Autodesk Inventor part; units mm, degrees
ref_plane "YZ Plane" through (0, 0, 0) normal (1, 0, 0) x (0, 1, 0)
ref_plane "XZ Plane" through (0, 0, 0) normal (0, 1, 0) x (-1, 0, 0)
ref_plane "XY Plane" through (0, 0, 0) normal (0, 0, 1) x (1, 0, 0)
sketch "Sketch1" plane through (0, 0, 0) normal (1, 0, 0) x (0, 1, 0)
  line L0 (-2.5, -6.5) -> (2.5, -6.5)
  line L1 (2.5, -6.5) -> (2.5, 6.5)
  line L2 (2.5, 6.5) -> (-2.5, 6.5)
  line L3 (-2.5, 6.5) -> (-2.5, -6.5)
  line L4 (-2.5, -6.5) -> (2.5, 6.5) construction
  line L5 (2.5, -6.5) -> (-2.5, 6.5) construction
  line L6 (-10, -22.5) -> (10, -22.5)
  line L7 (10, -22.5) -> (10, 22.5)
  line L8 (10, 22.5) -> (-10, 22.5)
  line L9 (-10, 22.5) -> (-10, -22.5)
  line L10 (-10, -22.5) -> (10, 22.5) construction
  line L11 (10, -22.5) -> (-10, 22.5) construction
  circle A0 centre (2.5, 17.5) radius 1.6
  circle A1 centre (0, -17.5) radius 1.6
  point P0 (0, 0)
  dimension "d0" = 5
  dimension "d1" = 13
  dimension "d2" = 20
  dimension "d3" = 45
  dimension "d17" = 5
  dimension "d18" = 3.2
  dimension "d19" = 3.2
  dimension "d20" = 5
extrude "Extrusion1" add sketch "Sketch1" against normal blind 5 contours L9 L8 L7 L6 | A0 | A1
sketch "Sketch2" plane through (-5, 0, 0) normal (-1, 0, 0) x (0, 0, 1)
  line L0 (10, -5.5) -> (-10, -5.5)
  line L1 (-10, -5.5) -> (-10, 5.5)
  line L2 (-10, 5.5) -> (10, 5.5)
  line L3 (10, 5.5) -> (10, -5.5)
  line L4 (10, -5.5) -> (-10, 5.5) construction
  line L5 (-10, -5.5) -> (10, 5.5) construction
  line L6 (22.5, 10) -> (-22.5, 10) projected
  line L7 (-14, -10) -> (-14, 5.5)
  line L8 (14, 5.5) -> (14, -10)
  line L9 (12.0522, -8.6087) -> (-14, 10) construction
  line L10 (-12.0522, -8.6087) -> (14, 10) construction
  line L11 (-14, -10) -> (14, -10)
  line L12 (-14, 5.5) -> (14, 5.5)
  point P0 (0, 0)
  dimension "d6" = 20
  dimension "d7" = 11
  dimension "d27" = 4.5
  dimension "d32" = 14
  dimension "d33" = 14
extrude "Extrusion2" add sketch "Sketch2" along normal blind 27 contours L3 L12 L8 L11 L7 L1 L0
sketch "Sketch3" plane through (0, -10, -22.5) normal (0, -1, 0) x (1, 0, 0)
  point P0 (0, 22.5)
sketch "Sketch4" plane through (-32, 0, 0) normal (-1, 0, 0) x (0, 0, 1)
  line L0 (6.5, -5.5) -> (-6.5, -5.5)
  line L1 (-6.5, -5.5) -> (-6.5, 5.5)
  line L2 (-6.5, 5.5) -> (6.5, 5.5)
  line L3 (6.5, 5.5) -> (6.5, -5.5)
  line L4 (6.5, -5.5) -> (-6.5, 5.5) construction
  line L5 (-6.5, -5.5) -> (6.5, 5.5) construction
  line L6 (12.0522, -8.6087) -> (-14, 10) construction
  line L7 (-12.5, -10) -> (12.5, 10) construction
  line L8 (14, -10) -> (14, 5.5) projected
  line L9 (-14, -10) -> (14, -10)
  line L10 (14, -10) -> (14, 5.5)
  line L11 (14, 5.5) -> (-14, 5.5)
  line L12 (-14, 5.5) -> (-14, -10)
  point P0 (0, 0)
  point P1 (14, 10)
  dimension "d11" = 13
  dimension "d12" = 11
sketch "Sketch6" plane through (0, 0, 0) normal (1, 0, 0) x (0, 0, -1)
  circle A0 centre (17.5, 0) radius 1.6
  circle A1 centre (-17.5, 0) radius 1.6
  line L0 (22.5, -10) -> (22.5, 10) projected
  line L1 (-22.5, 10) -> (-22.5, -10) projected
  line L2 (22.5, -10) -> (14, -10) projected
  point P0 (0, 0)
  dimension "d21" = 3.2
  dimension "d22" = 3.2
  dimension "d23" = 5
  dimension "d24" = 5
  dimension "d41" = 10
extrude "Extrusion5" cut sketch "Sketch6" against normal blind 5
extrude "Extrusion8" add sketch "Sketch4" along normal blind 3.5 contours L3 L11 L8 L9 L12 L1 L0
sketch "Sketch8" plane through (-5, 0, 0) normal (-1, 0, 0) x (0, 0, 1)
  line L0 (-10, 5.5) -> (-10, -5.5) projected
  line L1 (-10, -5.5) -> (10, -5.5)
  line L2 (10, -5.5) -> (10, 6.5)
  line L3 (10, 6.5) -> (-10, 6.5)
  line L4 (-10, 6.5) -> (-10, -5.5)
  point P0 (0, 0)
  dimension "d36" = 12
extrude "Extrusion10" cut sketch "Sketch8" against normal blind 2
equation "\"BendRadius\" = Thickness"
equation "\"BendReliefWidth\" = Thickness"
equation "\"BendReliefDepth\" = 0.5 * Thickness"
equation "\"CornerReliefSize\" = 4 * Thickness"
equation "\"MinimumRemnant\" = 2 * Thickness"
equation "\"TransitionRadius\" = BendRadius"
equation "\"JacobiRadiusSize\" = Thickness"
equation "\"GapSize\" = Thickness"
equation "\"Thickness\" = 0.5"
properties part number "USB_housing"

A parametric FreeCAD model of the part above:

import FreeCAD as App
import Part
import Sketcher
from FreeCAD import Vector
Q = App.Units.Quantity

doc = App.newDocument("Part")
body = doc.addObject("PartDesign::Body", "Body")

# Sketch on YZ plane
sketch1 = body.newObject("Sketcher::SketchObject", "Sketch")
sketch1.AttachmentSupport = (doc.getObject("YZ_Plane"), [""])
sketch1.MapMode = "FlatFace"
sketch1.addGeometry(Part.LineSegment(Vector(-10, 22.5, 0), Vector(-10, -22.5, 0)), False)
sketch1.addGeometry(Part.LineSegment(Vector(-10, -22.5, 0), Vector(10, -22.5, 0)), False)
sketch1.addGeometry(Part.LineSegment(Vector(10, -22.5, 0), Vector(10, 22.5, 0)), False)
sketch1.addGeometry(Part.LineSegment(Vector(10, 22.5, 0), Vector(-10, 22.5, 0)), False)
sketch1.addGeometry(Part.LineSegment(Vector(2.5, -6.5, 0), Vector(-2.5, -6.5, 0)), False)
sketch1.addGeometry(Part.LineSegment(Vector(-2.5, -6.5, 0), Vector(-2.5, 6.5, 0)), False)
sketch1.addGeometry(Part.LineSegment(Vector(-2.5, 6.5, 0), Vector(2.5, 6.5, 0)), False)
sketch1.addGeometry(Part.LineSegment(Vector(2.5, 6.5, 0), Vector(2.5, -6.5, 0)), False)
sketch1.addConstraint(Sketcher.Constraint("Coincident", 0, 2, 1, 1))
sketch1.addConstraint(Sketcher.Constraint("Coincident", 1, 2, 2, 1))
sketch1.addConstraint(Sketcher.Constraint("Coincident", 2, 2, 3, 1))
sketch1.addConstraint(Sketcher.Constraint("Coincident", 3, 2, 0, 1))
sketch1.addConstraint(Sketcher.Constraint("Coincident", 4, 2, 5, 1))
sketch1.addConstraint(Sketcher.Constraint("Coincident", 5, 2, 6, 1))
sketch1.addConstraint(Sketcher.Constraint("Coincident", 6, 2, 7, 1))
sketch1.addConstraint(Sketcher.Constraint("Coincident", 7, 2, 4, 1))
sketch1.addConstraint(Sketcher.Constraint("Vertical", 0))
sketch1.addConstraint(Sketcher.Constraint("Horizontal", 1))
sketch1.addConstraint(Sketcher.Constraint("Vertical", 2))
sketch1.addConstraint(Sketcher.Constraint("Horizontal", 3))
sketch1.addConstraint(Sketcher.Constraint("Horizontal", 4))
sketch1.addConstraint(Sketcher.Constraint("Vertical", 5))
sketch1.addConstraint(Sketcher.Constraint("Horizontal", 6))
sketch1.addConstraint(Sketcher.Constraint("Vertical", 7))
sketch1.addConstraint(Sketcher.Constraint("Symmetric", 0, 2, 2, 2, -1, 1))
sketch1.addConstraint(Sketcher.Constraint("Symmetric", 4, 2, 6, 2, -1, 1))
sketch1.addConstraint(Sketcher.Constraint("DistanceX", 1, 1, 1, 2, Q("20 mm")))
sketch1.addConstraint(Sketcher.Constraint("DistanceX", 4, 2, 4, 1, Q("5 mm")))
sketch1.addConstraint(Sketcher.Constraint("DistanceY", 0, 2, 0, 1, Q("45 mm")))
sketch1.addConstraint(Sketcher.Constraint("DistanceY", 5, 1, 5, 2, Q("13 mm")))
pad1 = body.newObject("PartDesign::Pad", "Pad")
pad1.Profile = sketch1
pad1.Length = 5
pad1.Reversed = True

# Sketch on YZ plane
sketch2 = body.newObject("Sketcher::SketchObject", "Sketch001")
sketch2.AttachmentSupport = (doc.getObject("YZ_Plane"), [""])
sketch2.MapMode = "FlatFace"
sketch2.AttachmentOffset = App.Placement(Vector(0, 0, -5), App.Rotation())
sketch2.addGeometry(Part.LineSegment(Vector(5.5, 10, 0), Vector(-5.5, 10, 0)), False)
sketch2.addGeometry(Part.LineSegment(Vector(-5.5, 10, 0), Vector(-5.5, -10, 0)), False)
sketch2.addGeometry(Part.LineSegment(Vector(-5.5, -10, 0), Vector(5.5, -10, 0)), False)
sketch2.addGeometry(Part.LineSegment(Vector(5.5, -10, 0), Vector(5.5, -14, 0)), False)
sketch2.addGeometry(Part.LineSegment(Vector(5.5, -14, 0), Vector(-10, -14, 0)), False)
sketch2.addGeometry(Part.LineSegment(Vector(-10, -14, 0), Vector(-10, 14, 0)), False)
sketch2.addGeometry(Part.LineSegment(Vector(-10, 14, 0), Vector(5.5, 14, 0)), False)
sketch2.addGeometry(Part.LineSegment(Vector(5.5, 14, 0), Vector(5.5, 10, 0)), False)
sketch2.addConstraint(Sketcher.Constraint("Coincident", 0, 2, 1, 1))
sketch2.addConstraint(Sketcher.Constraint("Coincident", 1, 2, 2, 1))
sketch2.addConstraint(Sketcher.Constraint("Coincident", 2, 2, 3, 1))
sketch2.addConstraint(Sketcher.Constraint("Coincident", 3, 2, 4, 1))
sketch2.addConstraint(Sketcher.Constraint("Coincident", 4, 2, 5, 1))
sketch2.addConstraint(Sketcher.Constraint("Coincident", 5, 2, 6, 1))
sketch2.addConstraint(Sketcher.Constraint("Coincident", 6, 2, 7, 1))
sketch2.addConstraint(Sketcher.Constraint("Coincident", 7, 2, 0, 1))
sketch2.addConstraint(Sketcher.Constraint("Horizontal", 0))
sketch2.addConstraint(Sketcher.Constraint("Vertical", 1))
sketch2.addConstraint(Sketcher.Constraint("Horizontal", 2))
sketch2.addConstraint(Sketcher.Constraint("Vertical", 3))
sketch2.addConstraint(Sketcher.Constraint("Horizontal", 4))
sketch2.addConstraint(Sketcher.Constraint("Vertical", 5))
sketch2.addConstraint(Sketcher.Constraint("Horizontal", 6))
sketch2.addConstraint(Sketcher.Constraint("Vertical", 7))
sketch2.addConstraint(Sketcher.Constraint("Symmetric", 0, 2, 2, 2, -1, 1))
sketch2.addConstraint(Sketcher.Constraint("Symmetric", 3, 2, 6, 2, -1))
sketch2.addConstraint(Sketcher.Constraint("DistanceX", 0, 2, 0, 1, Q("11 mm")))
sketch2.addConstraint(Sketcher.Constraint("DistanceY", 1, 2, 1, 1, Q("20 mm")))
sketch2.addConstraint(Sketcher.Constraint("DistanceY", 3, 2, -1, 1, Q("14 mm")))
sketch2.addConstraint(Sketcher.Constraint("DistanceX", 4, 2, 1, 2, Q("4.5 mm")))
pad2 = body.newObject("PartDesign::Pad", "Pad001")
pad2.Profile = sketch2
pad2.Length = 27
pad2.Reversed = True

# Sketch on YZ plane
sketch3 = body.newObject("Sketcher::SketchObject", "Sketch002")
sketch3.AttachmentSupport = (doc.getObject("YZ_Plane"), [""])
sketch3.MapMode = "FlatFace"
sketch3.addGeometry(Part.Circle(Vector(0, -17.5, 0), Vector(0, 0, 1), 1.6), False)
sketch3.addGeometry(Part.Circle(Vector(0, 17.5, 0), Vector(0, 0, 1), 1.6), False)
sketch3.addConstraint(Sketcher.Constraint("Equal", 0, 1))
sketch3.addConstraint(Sketcher.Constraint("Symmetric", 0, 3, 1, 3, -1, 1))
sketch3.addConstraint(Sketcher.Constraint("PointOnObject", 0, 3, -2))
sketch3.addConstraint(Sketcher.Constraint("Diameter", 0, Q("3.2 mm")))
sketch3.addConstraint(Sketcher.Constraint("DistanceY", 0, 3, 1, 3, Q("35 mm")))
pocket1 = body.newObject("PartDesign::Pocket", "Pocket")
pocket1.Profile = sketch3
pocket1.Length = 5

# Sketch on YZ plane
sketch4 = body.newObject("Sketcher::SketchObject", "Sketch003")
sketch4.AttachmentSupport = (doc.getObject("YZ_Plane"), [""])
sketch4.MapMode = "FlatFace"
sketch4.AttachmentOffset = App.Placement(Vector(0, 0, -32), App.Rotation())
sketch4.addGeometry(Part.LineSegment(Vector(5.5, 6.5, 0), Vector(-5.5, 6.5, 0)), False)
sketch4.addGeometry(Part.LineSegment(Vector(-5.5, 6.5, 0), Vector(-5.5, -6.5, 0)), False)
sketch4.addGeometry(Part.LineSegment(Vector(-5.5, -6.5, 0), Vector(5.5, -6.5, 0)), False)
sketch4.addGeometry(Part.LineSegment(Vector(5.5, -6.5, 0), Vector(5.5, -14, 0)), False)
sketch4.addGeometry(Part.LineSegment(Vector(5.5, -14, 0), Vector(-10, -14, 0)), False)
sketch4.addGeometry(Part.LineSegment(Vector(-10, -14, 0), Vector(-10, 14, 0)), False)
sketch4.addGeometry(Part.LineSegment(Vector(-10, 14, 0), Vector(5.5, 14, 0)), False)
sketch4.addGeometry(Part.LineSegment(Vector(5.5, 14, 0), Vector(5.5, 6.5, 0)), False)
sketch4.addConstraint(Sketcher.Constraint("Coincident", 0, 2, 1, 1))
sketch4.addConstraint(Sketcher.Constraint("Coincident", 1, 2, 2, 1))
sketch4.addConstraint(Sketcher.Constraint("Coincident", 2, 2, 3, 1))
sketch4.addConstraint(Sketcher.Constraint("Coincident", 3, 2, 4, 1))
sketch4.addConstraint(Sketcher.Constraint("Coincident", 4, 2, 5, 1))
sketch4.addConstraint(Sketcher.Constraint("Coincident", 5, 2, 6, 1))
sketch4.addConstraint(Sketcher.Constraint("Coincident", 6, 2, 7, 1))
sketch4.addConstraint(Sketcher.Constraint("Coincident", 7, 2, 0, 1))
sketch4.addConstraint(Sketcher.Constraint("Horizontal", 0))
sketch4.addConstraint(Sketcher.Constraint("Vertical", 1))
sketch4.addConstraint(Sketcher.Constraint("Horizontal", 2))
sketch4.addConstraint(Sketcher.Constraint("Vertical", 3))
sketch4.addConstraint(Sketcher.Constraint("Horizontal", 4))
sketch4.addConstraint(Sketcher.Constraint("Vertical", 5))
sketch4.addConstraint(Sketcher.Constraint("Horizontal", 6))
sketch4.addConstraint(Sketcher.Constraint("Vertical", 7))
sketch4.addConstraint(Sketcher.Constraint("Symmetric", 0, 2, 2, 2, -1, 1))
sketch4.addConstraint(Sketcher.Constraint("Symmetric", 3, 2, 6, 2, -1))
sketch4.addConstraint(Sketcher.Constraint("DistanceX", 0, 2, 0, 1, Q("11 mm")))
sketch4.addConstraint(Sketcher.Constraint("DistanceY", 1, 2, 1, 1, Q("13 mm")))
sketch4.addConstraint(Sketcher.Constraint("DistanceY", 5, 1, 5, 2, Q("28 mm")))
sketch4.addConstraint(Sketcher.Constraint("DistanceX", 4, 2, 4, 1, Q("15.5 mm")))
pad3 = body.newObject("PartDesign::Pad", "Pad002")
pad3.Profile = sketch4
pad3.Length = 3.5
pad3.Reversed = True

# Sketch on YZ plane
sketch5 = body.newObject("Sketcher::SketchObject", "Sketch004")
sketch5.AttachmentSupport = (doc.getObject("YZ_Plane"), [""])
sketch5.MapMode = "FlatFace"
sketch5.AttachmentOffset = App.Placement(Vector(0, 0, -5), App.Rotation())
sketch5.addGeometry(Part.LineSegment(Vector(6.5, -10, 0), Vector(-5.5, -10, 0)), False)
sketch5.addGeometry(Part.LineSegment(Vector(-5.5, -10, 0), Vector(-5.5, 10, 0)), False)
sketch5.addGeometry(Part.LineSegment(Vector(-5.5, 10, 0), Vector(6.5, 10, 0)), False)
sketch5.addGeometry(Part.LineSegment(Vector(6.5, 10, 0), Vector(6.5, -10, 0)), False)
sketch5.addConstraint(Sketcher.Constraint("Coincident", 0, 2, 1, 1))
sketch5.addConstraint(Sketcher.Constraint("Coincident", 1, 2, 2, 1))
sketch5.addConstraint(Sketcher.Constraint("Coincident", 2, 2, 3, 1))
sketch5.addConstraint(Sketcher.Constraint("Coincident", 3, 2, 0, 1))
sketch5.addConstraint(Sketcher.Constraint("Horizontal", 0))
sketch5.addConstraint(Sketcher.Constraint("Vertical", 1))
sketch5.addConstraint(Sketcher.Constraint("Horizontal", 2))
sketch5.addConstraint(Sketcher.Constraint("Vertical", 3))
sketch5.addConstraint(Sketcher.Constraint("DistanceX", 0, 2, 0, 1, Q("12 mm")))
sketch5.addConstraint(Sketcher.Constraint("DistanceY", 1, 1, 1, 2, Q("20 mm")))
sketch5.addConstraint(Sketcher.Constraint("DistanceY", 0, 2, -1, 1, Q("10 mm")))
sketch5.addConstraint(Sketcher.Constraint("DistanceX", 0, 2, -1, 1, Q("5.5 mm")))
pocket2 = body.newObject("PartDesign::Pocket", "Pocket001")
pocket2.Profile = sketch5
pocket2.Length = 2
pocket2.Reversed = True

doc.recompute()
